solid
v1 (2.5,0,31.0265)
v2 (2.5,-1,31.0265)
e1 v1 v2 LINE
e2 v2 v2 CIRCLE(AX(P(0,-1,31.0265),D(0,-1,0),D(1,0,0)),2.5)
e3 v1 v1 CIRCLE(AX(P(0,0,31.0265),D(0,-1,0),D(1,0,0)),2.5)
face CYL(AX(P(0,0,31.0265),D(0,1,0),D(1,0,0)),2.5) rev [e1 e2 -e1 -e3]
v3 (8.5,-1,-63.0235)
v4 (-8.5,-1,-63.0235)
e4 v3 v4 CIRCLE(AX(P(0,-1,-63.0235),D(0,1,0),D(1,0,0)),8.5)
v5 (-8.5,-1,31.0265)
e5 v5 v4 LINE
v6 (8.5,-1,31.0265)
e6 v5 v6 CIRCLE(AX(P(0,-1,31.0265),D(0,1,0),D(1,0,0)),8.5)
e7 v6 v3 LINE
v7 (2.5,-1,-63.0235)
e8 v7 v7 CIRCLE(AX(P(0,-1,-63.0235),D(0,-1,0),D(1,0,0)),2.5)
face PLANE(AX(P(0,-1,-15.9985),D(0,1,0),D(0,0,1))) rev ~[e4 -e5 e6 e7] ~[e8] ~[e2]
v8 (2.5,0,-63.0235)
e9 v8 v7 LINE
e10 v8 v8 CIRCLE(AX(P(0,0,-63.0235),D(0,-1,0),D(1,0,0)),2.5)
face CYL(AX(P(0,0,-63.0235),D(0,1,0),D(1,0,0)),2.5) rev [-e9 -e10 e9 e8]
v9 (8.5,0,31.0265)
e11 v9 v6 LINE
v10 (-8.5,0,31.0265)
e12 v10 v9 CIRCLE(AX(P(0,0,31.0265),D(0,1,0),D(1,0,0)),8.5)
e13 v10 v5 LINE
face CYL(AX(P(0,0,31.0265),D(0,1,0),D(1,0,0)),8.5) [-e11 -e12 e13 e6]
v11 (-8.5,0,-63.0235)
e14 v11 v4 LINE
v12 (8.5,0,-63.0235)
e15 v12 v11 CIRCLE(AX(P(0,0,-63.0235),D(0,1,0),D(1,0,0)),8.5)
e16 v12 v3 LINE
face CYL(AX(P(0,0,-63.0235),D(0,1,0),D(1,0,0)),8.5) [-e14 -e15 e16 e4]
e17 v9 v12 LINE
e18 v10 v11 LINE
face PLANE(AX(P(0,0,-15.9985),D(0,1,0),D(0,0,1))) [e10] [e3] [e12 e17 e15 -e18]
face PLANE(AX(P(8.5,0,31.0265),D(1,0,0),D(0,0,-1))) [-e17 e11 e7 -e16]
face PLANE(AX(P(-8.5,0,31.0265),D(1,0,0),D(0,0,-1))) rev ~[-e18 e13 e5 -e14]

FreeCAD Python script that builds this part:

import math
import FreeCAD as App
import Part
import Sketcher
Q = App.Units.Quantity

doc = App.newDocument("Part")
body = doc.addObject("PartDesign::Body", "Body")

# Sketch on XZ plane
sketch1 = doc.addObject("Sketcher::SketchObject", "Sketch")
body.addObject(sketch1)
sketch1.AttachmentSupport = (doc.XZ_Plane, [""])
sketch1.MapMode = "FlatFace"
sketch1.addGeometry(Part.LineSegment(App.Vector(8.5, -63.0235, 0), App.Vector(8.5, 31.0265, 0)), False)
sketch1.addGeometry(Part.ArcOfCircle(Part.Circle(App.Vector(0, 31.0265, 0), App.Vector(0, 0, 1), 8.5), math.radians(0), math.radians(180)), False)
sketch1.addGeometry(Part.LineSegment(App.Vector(-8.5, 31.0265, 0), App.Vector(-8.5, -63.0235, 0)), False)
sketch1.addGeometry(Part.ArcOfCircle(Part.Circle(App.Vector(0, -63.0235, 0), App.Vector(0, 0, 1), 8.5), math.radians(180), math.radians(360)), False)
sketch1.addGeometry(Part.Circle(App.Vector(0, -63.0235, 0), App.Vector(0, 0, 1), 2.5), False)
sketch1.addGeometry(Part.Circle(App.Vector(0, 31.0265, 0), App.Vector(0, 0, 1), 2.5), False)
sketch1.addConstraint(Sketcher.Constraint("Tangent", 0, 2, 1, 1))
sketch1.addConstraint(Sketcher.Constraint("Tangent", 1, 2, 2, 1))
sketch1.addConstraint(Sketcher.Constraint("Tangent", 2, 2, 3, 1))
sketch1.addConstraint(Sketcher.Constraint("Tangent", 3, 2, 0, 1))
sketch1.addConstraint(Sketcher.Constraint("Vertical", 0))
sketch1.addConstraint(Sketcher.Constraint("Vertical", 2))
sketch1.addConstraint(Sketcher.Constraint("Coincident", 4, 3, 3, 3))
sketch1.addConstraint(Sketcher.Constraint("Coincident", 5, 3, 1, 3))
sketch1.addConstraint(Sketcher.Constraint("Equal", 4, 5))
sketch1.addConstraint(Sketcher.Constraint("PointOnObject", 1, 3, -2))
sketch1.addConstraint(Sketcher.Constraint("Diameter", 4, Q("5 mm")))
sketch1.addConstraint(Sketcher.Constraint("Radius", 1, Q("8.5 mm")))
sketch1.addConstraint(Sketcher.Constraint("DistanceY", 0, 1, 0, 2, Q("94.05 mm")))
sketch1.addConstraint(Sketcher.Constraint("DistanceY", -1, 1, 1, 3, Q("31.0265 mm")))
pad1 = doc.addObject("PartDesign::Pad", "Pad")
body.addObject(pad1)
pad1.Profile = sketch1
pad1.Length = 1

doc.recompute()
